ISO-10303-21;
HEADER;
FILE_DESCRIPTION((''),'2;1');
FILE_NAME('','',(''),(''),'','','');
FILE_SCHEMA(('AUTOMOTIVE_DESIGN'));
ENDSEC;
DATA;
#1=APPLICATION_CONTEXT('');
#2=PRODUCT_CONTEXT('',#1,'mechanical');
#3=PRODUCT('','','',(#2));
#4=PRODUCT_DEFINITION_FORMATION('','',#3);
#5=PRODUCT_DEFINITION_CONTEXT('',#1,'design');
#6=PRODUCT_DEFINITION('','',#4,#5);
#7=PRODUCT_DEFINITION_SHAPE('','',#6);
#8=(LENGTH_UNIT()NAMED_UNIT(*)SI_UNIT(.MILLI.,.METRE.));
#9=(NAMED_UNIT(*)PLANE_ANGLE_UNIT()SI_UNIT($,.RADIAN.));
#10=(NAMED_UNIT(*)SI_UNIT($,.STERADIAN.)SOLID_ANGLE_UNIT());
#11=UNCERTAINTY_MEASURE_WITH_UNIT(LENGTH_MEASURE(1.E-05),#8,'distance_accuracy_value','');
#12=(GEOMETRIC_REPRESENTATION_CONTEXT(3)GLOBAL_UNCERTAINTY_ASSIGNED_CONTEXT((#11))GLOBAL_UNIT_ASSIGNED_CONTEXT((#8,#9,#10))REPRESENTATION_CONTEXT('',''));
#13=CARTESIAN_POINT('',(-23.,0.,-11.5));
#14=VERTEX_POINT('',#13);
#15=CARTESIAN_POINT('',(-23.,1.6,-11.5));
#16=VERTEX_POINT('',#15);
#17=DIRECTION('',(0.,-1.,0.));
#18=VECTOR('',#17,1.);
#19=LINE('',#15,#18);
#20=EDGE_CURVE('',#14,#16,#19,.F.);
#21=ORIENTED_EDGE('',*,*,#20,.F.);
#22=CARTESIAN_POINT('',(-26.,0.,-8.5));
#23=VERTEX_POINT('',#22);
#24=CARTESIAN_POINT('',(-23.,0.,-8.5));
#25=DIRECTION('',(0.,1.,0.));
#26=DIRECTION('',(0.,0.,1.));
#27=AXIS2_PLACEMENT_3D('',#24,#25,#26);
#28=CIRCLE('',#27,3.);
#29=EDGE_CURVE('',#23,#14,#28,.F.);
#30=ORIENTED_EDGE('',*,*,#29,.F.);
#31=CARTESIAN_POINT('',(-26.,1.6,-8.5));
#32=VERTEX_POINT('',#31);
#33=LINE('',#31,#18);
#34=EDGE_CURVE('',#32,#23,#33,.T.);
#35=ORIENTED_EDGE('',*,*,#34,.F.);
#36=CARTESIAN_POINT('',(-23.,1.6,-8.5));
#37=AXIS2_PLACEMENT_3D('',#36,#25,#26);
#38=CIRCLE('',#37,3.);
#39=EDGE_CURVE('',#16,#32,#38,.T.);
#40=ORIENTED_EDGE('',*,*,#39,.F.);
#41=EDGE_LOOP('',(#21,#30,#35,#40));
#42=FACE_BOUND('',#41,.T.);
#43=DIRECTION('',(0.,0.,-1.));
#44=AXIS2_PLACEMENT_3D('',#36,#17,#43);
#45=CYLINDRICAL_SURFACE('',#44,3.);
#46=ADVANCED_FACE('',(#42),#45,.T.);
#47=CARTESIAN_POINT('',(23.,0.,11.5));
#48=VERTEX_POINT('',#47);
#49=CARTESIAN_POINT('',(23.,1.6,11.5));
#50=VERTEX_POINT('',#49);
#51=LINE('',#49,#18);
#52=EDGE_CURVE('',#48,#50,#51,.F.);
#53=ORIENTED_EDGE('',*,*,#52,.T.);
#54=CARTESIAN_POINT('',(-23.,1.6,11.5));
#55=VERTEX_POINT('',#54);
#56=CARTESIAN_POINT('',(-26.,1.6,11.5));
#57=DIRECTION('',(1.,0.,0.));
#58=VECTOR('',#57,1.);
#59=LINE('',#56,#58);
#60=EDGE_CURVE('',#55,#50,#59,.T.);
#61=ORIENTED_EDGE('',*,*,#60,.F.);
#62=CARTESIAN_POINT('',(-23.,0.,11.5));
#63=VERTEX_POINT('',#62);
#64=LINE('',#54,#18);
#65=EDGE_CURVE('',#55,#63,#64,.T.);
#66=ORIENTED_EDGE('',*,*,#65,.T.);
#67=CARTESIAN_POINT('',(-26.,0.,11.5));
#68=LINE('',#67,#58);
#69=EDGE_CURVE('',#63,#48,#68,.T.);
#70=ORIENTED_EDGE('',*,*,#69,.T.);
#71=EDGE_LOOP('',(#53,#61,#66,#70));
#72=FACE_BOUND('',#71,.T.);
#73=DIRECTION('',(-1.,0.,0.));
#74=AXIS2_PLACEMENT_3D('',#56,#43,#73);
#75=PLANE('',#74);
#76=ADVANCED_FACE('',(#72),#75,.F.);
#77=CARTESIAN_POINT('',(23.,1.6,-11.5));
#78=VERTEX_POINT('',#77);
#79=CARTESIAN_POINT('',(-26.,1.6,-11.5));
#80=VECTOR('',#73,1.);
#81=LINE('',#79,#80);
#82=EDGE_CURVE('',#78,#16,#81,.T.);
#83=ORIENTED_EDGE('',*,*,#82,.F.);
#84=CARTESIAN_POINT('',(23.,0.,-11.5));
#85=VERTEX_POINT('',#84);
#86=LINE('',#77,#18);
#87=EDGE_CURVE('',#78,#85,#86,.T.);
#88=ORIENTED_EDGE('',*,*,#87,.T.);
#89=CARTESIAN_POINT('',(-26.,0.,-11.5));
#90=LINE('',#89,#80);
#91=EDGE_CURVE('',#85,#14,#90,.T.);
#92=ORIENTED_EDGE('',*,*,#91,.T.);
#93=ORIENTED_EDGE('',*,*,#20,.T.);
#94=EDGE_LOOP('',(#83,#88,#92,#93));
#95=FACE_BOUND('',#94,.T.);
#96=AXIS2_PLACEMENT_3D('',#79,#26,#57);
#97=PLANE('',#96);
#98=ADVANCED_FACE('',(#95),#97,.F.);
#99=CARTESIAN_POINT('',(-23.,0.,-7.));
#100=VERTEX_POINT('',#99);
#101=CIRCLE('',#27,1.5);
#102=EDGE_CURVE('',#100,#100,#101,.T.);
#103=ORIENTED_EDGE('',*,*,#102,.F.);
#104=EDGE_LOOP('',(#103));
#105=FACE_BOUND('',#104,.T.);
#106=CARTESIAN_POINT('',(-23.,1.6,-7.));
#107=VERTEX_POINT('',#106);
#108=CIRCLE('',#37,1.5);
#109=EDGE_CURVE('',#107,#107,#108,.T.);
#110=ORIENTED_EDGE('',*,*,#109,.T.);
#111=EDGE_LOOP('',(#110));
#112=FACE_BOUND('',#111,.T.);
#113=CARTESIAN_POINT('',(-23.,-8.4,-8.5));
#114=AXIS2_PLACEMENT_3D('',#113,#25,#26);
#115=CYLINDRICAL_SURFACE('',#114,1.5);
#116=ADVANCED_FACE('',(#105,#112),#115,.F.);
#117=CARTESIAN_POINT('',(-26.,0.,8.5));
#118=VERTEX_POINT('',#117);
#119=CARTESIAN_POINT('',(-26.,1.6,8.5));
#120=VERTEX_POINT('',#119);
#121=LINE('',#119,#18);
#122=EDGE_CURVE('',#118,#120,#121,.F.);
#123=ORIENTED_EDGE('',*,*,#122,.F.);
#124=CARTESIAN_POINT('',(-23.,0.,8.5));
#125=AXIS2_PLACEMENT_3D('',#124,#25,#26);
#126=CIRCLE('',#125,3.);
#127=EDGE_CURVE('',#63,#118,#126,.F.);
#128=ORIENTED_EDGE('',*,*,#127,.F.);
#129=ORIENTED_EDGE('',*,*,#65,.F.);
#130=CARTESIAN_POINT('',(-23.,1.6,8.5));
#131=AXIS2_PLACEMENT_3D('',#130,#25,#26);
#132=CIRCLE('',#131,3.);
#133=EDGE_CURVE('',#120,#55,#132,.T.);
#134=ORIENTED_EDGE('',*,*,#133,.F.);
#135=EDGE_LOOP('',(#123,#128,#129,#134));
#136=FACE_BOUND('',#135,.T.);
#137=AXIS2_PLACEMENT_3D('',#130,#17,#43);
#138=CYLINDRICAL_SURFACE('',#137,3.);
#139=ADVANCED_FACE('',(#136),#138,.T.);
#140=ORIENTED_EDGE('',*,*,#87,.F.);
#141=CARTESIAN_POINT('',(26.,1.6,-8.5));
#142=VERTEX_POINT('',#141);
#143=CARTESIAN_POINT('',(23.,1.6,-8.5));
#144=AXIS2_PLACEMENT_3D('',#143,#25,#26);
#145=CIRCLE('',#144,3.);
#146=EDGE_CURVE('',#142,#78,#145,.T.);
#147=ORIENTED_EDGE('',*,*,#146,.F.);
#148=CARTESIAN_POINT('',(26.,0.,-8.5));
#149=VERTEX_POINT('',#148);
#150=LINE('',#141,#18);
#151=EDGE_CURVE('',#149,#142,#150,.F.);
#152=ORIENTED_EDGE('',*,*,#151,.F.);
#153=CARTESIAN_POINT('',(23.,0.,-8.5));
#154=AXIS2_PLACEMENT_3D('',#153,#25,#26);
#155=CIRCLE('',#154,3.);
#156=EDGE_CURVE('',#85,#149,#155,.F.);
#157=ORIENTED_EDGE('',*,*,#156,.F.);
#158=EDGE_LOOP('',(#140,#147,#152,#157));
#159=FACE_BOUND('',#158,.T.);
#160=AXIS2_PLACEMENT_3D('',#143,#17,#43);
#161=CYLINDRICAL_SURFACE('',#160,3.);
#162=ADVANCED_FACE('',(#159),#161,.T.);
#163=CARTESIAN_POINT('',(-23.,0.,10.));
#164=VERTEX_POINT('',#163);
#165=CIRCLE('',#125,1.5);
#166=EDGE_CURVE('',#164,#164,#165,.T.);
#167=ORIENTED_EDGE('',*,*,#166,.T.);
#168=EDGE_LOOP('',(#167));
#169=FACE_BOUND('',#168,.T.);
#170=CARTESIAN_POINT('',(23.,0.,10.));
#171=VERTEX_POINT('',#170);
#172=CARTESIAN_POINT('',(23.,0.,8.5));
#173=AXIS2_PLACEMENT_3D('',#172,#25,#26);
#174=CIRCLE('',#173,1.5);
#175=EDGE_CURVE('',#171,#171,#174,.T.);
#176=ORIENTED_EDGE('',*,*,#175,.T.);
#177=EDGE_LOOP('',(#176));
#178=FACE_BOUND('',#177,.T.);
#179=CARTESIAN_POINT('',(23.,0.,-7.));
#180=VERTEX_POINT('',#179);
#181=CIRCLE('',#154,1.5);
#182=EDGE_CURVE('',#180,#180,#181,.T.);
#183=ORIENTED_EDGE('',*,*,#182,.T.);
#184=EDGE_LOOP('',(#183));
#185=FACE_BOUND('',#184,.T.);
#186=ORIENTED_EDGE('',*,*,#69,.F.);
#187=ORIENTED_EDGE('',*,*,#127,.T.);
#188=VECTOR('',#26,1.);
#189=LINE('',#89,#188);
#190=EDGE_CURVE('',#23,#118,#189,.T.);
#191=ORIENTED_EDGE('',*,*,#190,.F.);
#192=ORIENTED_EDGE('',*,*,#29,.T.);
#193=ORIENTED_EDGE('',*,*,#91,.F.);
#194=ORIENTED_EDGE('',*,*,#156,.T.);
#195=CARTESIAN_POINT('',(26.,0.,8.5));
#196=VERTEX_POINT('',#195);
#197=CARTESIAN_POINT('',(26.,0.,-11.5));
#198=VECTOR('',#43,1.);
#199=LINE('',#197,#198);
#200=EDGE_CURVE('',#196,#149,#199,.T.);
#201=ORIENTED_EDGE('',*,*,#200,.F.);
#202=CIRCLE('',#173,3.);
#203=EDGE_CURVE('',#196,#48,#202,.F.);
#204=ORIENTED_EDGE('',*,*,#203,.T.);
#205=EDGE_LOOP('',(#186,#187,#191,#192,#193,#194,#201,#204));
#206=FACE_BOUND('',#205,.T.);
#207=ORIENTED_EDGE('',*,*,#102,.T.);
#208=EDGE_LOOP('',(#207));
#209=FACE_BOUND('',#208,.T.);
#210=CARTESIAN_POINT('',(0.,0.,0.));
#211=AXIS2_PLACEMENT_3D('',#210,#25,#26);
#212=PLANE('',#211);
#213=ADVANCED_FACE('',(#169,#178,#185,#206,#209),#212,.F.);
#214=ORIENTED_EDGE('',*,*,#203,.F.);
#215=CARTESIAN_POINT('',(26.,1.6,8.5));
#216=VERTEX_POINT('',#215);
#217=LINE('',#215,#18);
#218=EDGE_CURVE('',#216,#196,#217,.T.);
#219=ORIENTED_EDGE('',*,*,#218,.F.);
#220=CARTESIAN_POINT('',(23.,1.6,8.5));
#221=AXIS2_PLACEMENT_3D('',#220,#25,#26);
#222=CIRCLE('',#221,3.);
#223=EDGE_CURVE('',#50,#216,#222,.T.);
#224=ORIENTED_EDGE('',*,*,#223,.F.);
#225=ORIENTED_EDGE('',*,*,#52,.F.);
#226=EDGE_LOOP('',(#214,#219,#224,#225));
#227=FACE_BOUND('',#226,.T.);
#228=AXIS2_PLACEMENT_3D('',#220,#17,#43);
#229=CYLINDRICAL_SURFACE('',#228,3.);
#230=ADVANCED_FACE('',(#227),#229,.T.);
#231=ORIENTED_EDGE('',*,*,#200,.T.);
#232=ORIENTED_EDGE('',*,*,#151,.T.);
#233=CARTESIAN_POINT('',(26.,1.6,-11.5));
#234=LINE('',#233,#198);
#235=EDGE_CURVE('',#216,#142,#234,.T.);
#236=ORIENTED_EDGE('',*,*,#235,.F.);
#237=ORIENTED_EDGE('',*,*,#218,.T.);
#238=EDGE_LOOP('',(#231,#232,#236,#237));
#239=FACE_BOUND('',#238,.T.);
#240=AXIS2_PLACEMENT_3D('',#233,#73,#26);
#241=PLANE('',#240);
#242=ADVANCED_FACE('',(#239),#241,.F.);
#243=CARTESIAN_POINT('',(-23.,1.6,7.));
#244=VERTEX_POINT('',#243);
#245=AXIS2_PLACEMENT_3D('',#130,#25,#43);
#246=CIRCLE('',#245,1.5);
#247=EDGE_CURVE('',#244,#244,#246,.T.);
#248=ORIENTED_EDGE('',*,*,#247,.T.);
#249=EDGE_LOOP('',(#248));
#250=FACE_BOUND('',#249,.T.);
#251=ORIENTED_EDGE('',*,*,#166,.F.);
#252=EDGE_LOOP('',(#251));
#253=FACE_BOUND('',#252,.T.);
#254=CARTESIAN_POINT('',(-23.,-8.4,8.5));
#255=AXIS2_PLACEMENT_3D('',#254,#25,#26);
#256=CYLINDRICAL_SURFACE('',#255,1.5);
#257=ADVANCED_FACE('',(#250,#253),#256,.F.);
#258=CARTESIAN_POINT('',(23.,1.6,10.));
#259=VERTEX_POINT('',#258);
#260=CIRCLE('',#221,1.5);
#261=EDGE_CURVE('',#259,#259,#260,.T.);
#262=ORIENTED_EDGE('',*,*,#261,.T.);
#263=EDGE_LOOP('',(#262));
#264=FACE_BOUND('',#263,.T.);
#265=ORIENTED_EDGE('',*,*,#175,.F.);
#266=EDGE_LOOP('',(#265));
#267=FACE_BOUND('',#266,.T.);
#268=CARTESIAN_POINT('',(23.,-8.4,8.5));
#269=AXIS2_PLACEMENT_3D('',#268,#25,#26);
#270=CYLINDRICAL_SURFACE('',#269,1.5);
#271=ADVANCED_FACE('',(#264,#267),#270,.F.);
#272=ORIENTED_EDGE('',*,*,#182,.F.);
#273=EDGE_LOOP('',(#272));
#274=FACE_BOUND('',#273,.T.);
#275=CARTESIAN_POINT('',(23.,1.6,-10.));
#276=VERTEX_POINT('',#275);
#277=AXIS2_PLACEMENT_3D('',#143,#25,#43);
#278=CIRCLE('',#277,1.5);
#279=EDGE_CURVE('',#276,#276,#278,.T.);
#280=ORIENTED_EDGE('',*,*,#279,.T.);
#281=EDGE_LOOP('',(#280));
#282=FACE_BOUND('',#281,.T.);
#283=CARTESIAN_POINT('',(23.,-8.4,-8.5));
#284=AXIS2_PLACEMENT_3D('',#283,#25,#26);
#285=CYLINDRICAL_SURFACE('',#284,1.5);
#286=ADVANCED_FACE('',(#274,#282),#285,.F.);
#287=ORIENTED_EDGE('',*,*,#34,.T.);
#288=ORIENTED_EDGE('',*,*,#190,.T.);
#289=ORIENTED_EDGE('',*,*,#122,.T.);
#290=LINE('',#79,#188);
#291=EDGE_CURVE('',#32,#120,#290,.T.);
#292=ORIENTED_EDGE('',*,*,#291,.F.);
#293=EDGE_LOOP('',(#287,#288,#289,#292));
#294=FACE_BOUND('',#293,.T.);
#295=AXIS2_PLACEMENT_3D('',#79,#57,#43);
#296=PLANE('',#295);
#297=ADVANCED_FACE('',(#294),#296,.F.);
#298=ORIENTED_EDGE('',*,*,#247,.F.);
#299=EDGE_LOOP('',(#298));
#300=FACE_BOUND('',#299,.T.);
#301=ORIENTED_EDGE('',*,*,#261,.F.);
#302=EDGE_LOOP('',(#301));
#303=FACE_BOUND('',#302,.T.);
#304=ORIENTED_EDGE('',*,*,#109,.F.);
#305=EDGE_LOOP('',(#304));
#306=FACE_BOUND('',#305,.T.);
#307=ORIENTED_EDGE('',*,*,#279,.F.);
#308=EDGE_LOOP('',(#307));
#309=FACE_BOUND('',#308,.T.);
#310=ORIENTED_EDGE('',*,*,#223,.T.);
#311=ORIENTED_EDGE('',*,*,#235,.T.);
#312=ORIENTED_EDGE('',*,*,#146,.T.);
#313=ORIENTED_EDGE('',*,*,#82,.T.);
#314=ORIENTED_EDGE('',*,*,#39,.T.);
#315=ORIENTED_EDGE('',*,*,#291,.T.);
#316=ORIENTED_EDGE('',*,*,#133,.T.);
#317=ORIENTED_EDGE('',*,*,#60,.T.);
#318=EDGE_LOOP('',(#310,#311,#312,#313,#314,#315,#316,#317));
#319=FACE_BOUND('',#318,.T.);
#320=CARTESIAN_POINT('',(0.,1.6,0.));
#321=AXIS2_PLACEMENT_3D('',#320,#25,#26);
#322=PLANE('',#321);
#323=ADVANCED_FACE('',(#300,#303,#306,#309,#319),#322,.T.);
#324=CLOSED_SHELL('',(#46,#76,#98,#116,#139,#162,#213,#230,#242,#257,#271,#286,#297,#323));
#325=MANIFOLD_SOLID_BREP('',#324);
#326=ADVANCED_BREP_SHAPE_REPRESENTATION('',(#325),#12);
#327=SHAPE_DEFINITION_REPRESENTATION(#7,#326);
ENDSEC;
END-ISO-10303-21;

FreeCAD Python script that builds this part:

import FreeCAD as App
import Part
import Sketcher
Q = App.Units.Quantity


def edges_at(feature, points):
    """Names of the edges that pass closest to the given points."""
    edges = feature.Shape.Edges
    near = lambda p: min(range(len(edges)), key=lambda i: edges[i].distToShape(Part.Vertex(*p))[0])
    return sorted({f"Edge{near(p) + 1}" for p in points})


def add_polygon(sketch, points):
    """Adds a closed chain of lines whose ends are joined by coincident constraints."""
    first, n = sketch.GeometryCount, len(points)
    for a, b in zip(points, points[1:] + points[:1]):
        sketch.addGeometry(Part.LineSegment(App.Vector(*a, 0), App.Vector(*b, 0)), False)
    for i in range(n):
        sketch.addConstraint(Sketcher.Constraint("Coincident", first + i, 2, first + (i + 1) % n, 1))

doc = App.newDocument("Part")
params = doc.addObject("Spreadsheet::Sheet", "Params")
for row, (alias, value) in enumerate([
    ("sketch1_width", "52 mm"),
    ("sketch1_height", "23 mm"),
    ("pad1_length", "1.6 mm"),
    ("fillet_radius", "3 mm"),
    ("sketch2_diameter", "3 mm"),
    ("pocket1_length", "10 mm"),
], start=1):
    params.set(f"A{row}", alias)
    params.set(f"B{row}", "=" + value)
    params.setAlias(f"B{row}", alias)

body = doc.addObject("PartDesign::Body", "Body")

sketch1 = body.newObject("Sketcher::SketchObject", "Sketch")
sketch1.AttachmentSupport = (doc.getObject("XZ_Plane"), [""])
sketch1.MapMode = "FlatFace"
add_polygon(sketch1, [(-26, -12), (-26, 12), (26, 12), (26, -12)])
sketch1.addConstraint(Sketcher.Constraint("Vertical", 0))
sketch1.addConstraint(Sketcher.Constraint("Horizontal", 1))
sketch1.addConstraint(Sketcher.Constraint("Vertical", 2))
sketch1.addConstraint(Sketcher.Constraint("Horizontal", 3))
sketch1.addConstraint(Sketcher.Constraint("Symmetric", 0, 2, 2, 2, -1, 1))
sketch1.addConstraint(Sketcher.Constraint("DistanceX", 1, 1, 1, 2, Q("52 mm")))
sketch1.addConstraint(Sketcher.Constraint("DistanceY", 0, 1, 0, 2, Q("23 mm")))
sketch1.setExpression("Constraints[9]", "Params.sketch1_width")
sketch1.setExpression("Constraints[10]", "Params.sketch1_height")
pad1 = body.newObject("PartDesign::Pad", "Pad")
pad1.Profile = sketch1
pad1.setExpression("Length", "Params.pad1_length")
pad1.Reversed = True
doc.recompute()

fillet = body.newObject("PartDesign::Fillet", "Fillet")
fillet.Base = (pad1, edges_at(pad1, [
    (26, 0.8, 11.5),
    (-26, 0.8, 11.5),
    (-26, 0.8, -11.5),
    (26, 0.8, -11.5),
]))
fillet.setExpression("Radius", "Params.fillet_radius")

sketch2 = body.newObject("Sketcher::SketchObject", "Sketch001")
sketch2.AttachmentSupport = (doc.getObject("XZ_Plane"), [""])
sketch2.MapMode = "FlatFace"
sketch2.AttachmentOffset = App.Placement(App.Vector(0, 0, -1.6), App.Rotation())
sketch2.addGeometry(Part.Circle(App.Vector(-23, -8.5, 0), App.Vector(0, 0, 1), 1.5), False)
sketch2.addGeometry(Part.Circle(App.Vector(23, -8.5, 0), App.Vector(0, 0, 1), 1.5), False)
sketch2.addGeometry(Part.Circle(App.Vector(23, 8.5, 0), App.Vector(0, 0, 1), 1.5), False)
sketch2.addGeometry(Part.Circle(App.Vector(-23, 8.5, 0), App.Vector(0, 0, 1), 1.5), False)
sketch2.addConstraint(Sketcher.Constraint("Equal", 0, 1))
sketch2.addConstraint(Sketcher.Constraint("Equal", 1, 2))
sketch2.addConstraint(Sketcher.Constraint("Equal", 2, 3))
sketch2.addConstraint(Sketcher.Constraint("Symmetric", 0, 3, 2, 3, -1, 1))
sketch2.addConstraint(Sketcher.Constraint("Symmetric", 1, 3, 3, 3, -1, 1))
sketch2.addConstraint(Sketcher.Constraint("Symmetric", 0, 3, 1, 3, -2))
sketch2.addConstraint(Sketcher.Constraint("Diameter", 0, Q("3 mm")))
sketch2.addConstraint(Sketcher.Constraint("DistanceX", 0, 3, -1, 1, Q("23 mm")))
sketch2.addConstraint(Sketcher.Constraint("DistanceY", 1, 3, 2, 3, Q("17 mm")))
sketch2.setExpression("Constraints[6]", "Params.sketch2_diameter")
pocket1 = body.newObject("PartDesign::Pocket", "Pocket")
pocket1.Profile = sketch2
pocket1.setExpression("Length", "Params.pocket1_length")
pocket1.Reversed = True

doc.recompute()
